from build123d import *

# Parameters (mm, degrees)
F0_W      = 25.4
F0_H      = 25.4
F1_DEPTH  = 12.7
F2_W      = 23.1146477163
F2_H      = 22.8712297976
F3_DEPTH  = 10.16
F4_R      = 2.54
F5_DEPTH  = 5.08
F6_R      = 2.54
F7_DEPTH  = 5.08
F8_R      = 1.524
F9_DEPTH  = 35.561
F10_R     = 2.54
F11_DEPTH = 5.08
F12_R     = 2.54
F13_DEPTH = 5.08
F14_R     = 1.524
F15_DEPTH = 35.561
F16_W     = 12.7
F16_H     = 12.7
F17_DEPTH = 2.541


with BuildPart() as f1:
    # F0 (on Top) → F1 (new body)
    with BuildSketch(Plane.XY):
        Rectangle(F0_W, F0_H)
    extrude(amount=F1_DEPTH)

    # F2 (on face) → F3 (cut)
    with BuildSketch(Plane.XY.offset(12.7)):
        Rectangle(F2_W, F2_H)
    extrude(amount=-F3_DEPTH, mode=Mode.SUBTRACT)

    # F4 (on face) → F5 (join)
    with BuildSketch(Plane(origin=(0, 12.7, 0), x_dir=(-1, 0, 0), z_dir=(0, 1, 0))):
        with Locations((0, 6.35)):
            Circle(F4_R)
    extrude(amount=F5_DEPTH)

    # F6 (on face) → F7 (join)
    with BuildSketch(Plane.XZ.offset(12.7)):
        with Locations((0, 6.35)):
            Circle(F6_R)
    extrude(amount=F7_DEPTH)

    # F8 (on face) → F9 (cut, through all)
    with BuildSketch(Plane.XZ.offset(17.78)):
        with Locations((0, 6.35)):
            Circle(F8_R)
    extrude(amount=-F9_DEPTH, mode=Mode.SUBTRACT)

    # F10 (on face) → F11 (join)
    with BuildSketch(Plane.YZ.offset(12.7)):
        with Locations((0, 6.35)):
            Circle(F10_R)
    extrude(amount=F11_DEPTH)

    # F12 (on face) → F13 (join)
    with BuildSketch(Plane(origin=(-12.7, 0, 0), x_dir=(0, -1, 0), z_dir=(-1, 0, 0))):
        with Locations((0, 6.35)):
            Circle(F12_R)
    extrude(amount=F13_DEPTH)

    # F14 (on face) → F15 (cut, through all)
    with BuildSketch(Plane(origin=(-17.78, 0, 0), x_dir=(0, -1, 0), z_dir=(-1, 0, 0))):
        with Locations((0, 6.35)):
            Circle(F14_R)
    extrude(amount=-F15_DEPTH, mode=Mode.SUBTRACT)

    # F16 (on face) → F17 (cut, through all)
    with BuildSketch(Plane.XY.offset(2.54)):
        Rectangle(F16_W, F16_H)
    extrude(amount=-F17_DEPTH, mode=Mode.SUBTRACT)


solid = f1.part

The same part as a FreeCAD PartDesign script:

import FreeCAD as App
import Part
import Sketcher

V = App.Vector
Q = App.Units.Quantity


def add_polygon(sketch, points):
    """Adds a closed chain of lines whose ends are joined by coincident constraints."""
    first, n = sketch.GeometryCount, len(points)
    for a, b in zip(points, points[1:] + points[:1]):
        sketch.addGeometry(Part.LineSegment(App.Vector(*a, 0), App.Vector(*b, 0)), False)
    for i in range(n):
        sketch.addConstraint(Sketcher.Constraint("Coincident", first + i, 2, first + (i + 1) % n, 1))

doc = App.newDocument("Part")
body = doc.addObject("PartDesign::Body", "Body")

# Sketch on XY plane
sketch1 = body.newObject("Sketcher::SketchObject", "Sketch")
sketch1.AttachmentSupport = (doc.getObject("XY_Plane"), [""])
sketch1.MapMode = "FlatFace"
add_polygon(sketch1, [(-13, 13), (-13, -13), (13, -13), (13, 13)])  # lines 0-3
sketch1.addConstraint([
    Sketcher.Constraint("Vertical", 0),
    Sketcher.Constraint("Horizontal", 1),
    Sketcher.Constraint("Vertical", 2),
    Sketcher.Constraint("Horizontal", 3),
    Sketcher.Constraint("Symmetric", 0, 2, 2, 2, -1, 1),
    Sketcher.Constraint("Equal", 3, 0),
    Sketcher.Constraint("DistanceX", 1, 1, 1, 2, Q("1 in")),
])
pad1 = body.newObject("PartDesign::Pad", "Pad")
pad1.Profile = sketch1
pad1.Length = Q("0.5 in")

# Sketch on XY plane
sketch2 = body.newObject("Sketcher::SketchObject", "Sketch001")
sketch2.AttachmentSupport = (doc.getObject("XY_Plane"), [""])
sketch2.MapMode = "FlatFace"
sketch2.AttachmentOffset = App.Placement(V(0, 0, 0.5 * 25.4), App.Rotation())
add_polygon(sketch2, [(-12, 11), (-12, -11), (12, -11), (12, 11)])  # lines 0-3
sketch2.addConstraint([
    Sketcher.Constraint("Vertical", 0),
    Sketcher.Constraint("Horizontal", 1),
    Sketcher.Constraint("Vertical", 2),
    Sketcher.Constraint("Horizontal", 3),
    Sketcher.Constraint("Symmetric", 0, 2, 2, 2, -1, 1),
    Sketcher.Constraint("DistanceY", 0, 2, 0, 1, 22.87123),
    Sketcher.Constraint("DistanceX", 1, 1, 1, 2, 23.114648),
])
pocket1 = body.newObject("PartDesign::Pocket", "Pocket")
pocket1.Profile = sketch2
pocket1.Length = Q("0.4 in")

# Sketch on XZ plane
sketch3 = body.newObject("Sketcher::SketchObject", "Sketch002")
sketch3.AttachmentSupport = (doc.getObject("XZ_Plane"), [""])
sketch3.MapMode = "FlatFace"
sketch3.AttachmentOffset = App.Placement(V(0, 0, -0.5 * 25.4), App.Rotation())
sketch3.addGeometry(Part.Circle(V(0, 6.3, 0), V(0, 0, 1), 2.5), False)
sketch3.addConstraint([
    Sketcher.Constraint("PointOnObject", 0, 3, -2),
    Sketcher.Constraint("Diameter", 0, Q("0.2 in")),
    Sketcher.Constraint("DistanceY", -1, 1, 0, 3, Q("0.25 in")),
])
pad2 = body.newObject("PartDesign::Pad", "Pad001")
pad2.Profile = sketch3
pad2.Length = Q("0.2 in")
pad2.Reversed = True

# Sketch on XZ plane
sketch4 = body.newObject("Sketcher::SketchObject", "Sketch003")
sketch4.AttachmentSupport = (doc.getObject("XZ_Plane"), [""])
sketch4.MapMode = "FlatFace"
sketch4.AttachmentOffset = App.Placement(V(0, 0, 0.5 * 25.4), App.Rotation())
sketch4.addGeometry(Part.Circle(V(0, 6.3, 0), V(0, 0, 1), 2.5), False)
sketch4.addConstraint([
    Sketcher.Constraint("PointOnObject", 0, 3, -2),
    Sketcher.Constraint("Diameter", 0, Q("0.2 in")),
    Sketcher.Constraint("DistanceY", -1, 1, 0, 3, Q("0.25 in")),
])
pad3 = body.newObject("PartDesign::Pad", "Pad002")
pad3.Profile = sketch4
pad3.Length = Q("0.2 in")

# Sketch on XZ plane
sketch5 = body.newObject("Sketcher::SketchObject", "Sketch004")
sketch5.AttachmentSupport = (doc.getObject("XZ_Plane"), [""])
sketch5.MapMode = "FlatFace"
sketch5.AttachmentOffset = App.Placement(V(0, 0, 0.7 * 25.4), App.Rotation())
sketch5.addGeometry(Part.Circle(V(0, 6.3, 0), V(0, 0, 1), 1.5), False)
sketch5.addConstraint([
    Sketcher.Constraint("PointOnObject", 0, 3, -2),
    Sketcher.Constraint("Diameter", 0, Q("0.12 in")),
    Sketcher.Constraint("DistanceY", -1, 1, 0, 3, Q("0.25 in")),
])
pocket2 = body.newObject("PartDesign::Pocket", "Pocket001")
pocket2.Profile = sketch5
pocket2.Type = "ThroughAll"

# Sketch on YZ plane
sketch6 = body.newObject("Sketcher::SketchObject", "Sketch005")
sketch6.AttachmentSupport = (doc.getObject("YZ_Plane"), [""])
sketch6.MapMode = "FlatFace"
sketch6.AttachmentOffset = App.Placement(V(0, 0, 0.5 * 25.4), App.Rotation())
sketch6.addGeometry(Part.Circle(V(0, 6.3, 0), V(0, 0, 1), 2.5), False)
sketch6.addConstraint([
    Sketcher.Constraint("PointOnObject", 0, 3, -2),
    Sketcher.Constraint("Diameter", 0, Q("0.2 in")),
    Sketcher.Constraint("DistanceY", -1, 1, 0, 3, Q("0.25 in")),
])
pad4 = body.newObject("PartDesign::Pad", "Pad003")
pad4.Profile = sketch6
pad4.Length = Q("0.2 in")

# Sketch on YZ plane
sketch7 = body.newObject("Sketcher::SketchObject", "Sketch006")
sketch7.AttachmentSupport = (doc.getObject("YZ_Plane"), [""])
sketch7.MapMode = "FlatFace"
sketch7.AttachmentOffset = App.Placement(V(0, 0, -0.5 * 25.4), App.Rotation())
sketch7.addGeometry(Part.Circle(V(0, 6.3, 0), V(0, 0, 1), 2.5), False)
sketch7.addConstraint([
    Sketcher.Constraint("PointOnObject", 0, 3, -2),
    Sketcher.Constraint("Diameter", 0, Q("0.2 in")),
    Sketcher.Constraint("DistanceY", -1, 1, 0, 3, Q("0.25 in")),
])
pad5 = body.newObject("PartDesign::Pad", "Pad004")
pad5.Profile = sketch7
pad5.Length = Q("0.2 in")
pad5.Reversed = True

# Sketch on YZ plane
sketch8 = body.newObject("Sketcher::SketchObject", "Sketch007")
sketch8.AttachmentSupport = (doc.getObject("YZ_Plane"), [""])
sketch8.MapMode = "FlatFace"
sketch8.AttachmentOffset = App.Placement(V(0, 0, -0.7 * 25.4), App.Rotation())
sketch8.addGeometry(Part.Circle(V(0, 6.3, 0), V(0, 0, 1), 1.5), False)
sketch8.addConstraint([
    Sketcher.Constraint("PointOnObject", 0, 3, -2),
    Sketcher.Constraint("Diameter", 0, Q("0.12 in")),
    Sketcher.Constraint("DistanceY", -1, 1, 0, 3, Q("0.25 in")),
])
pocket3 = body.newObject("PartDesign::Pocket", "Pocket002")
pocket3.Profile = sketch8
pocket3.Type = "ThroughAll"
pocket3.Reversed = True

# Sketch on XY plane
sketch9 = body.newObject("Sketcher::SketchObject", "Sketch008")
sketch9.AttachmentSupport = (doc.getObject("XY_Plane"), [""])
sketch9.MapMode = "FlatFace"
sketch9.AttachmentOffset = App.Placement(V(0, 0, 0.1 * 25.4), App.Rotation())
add_polygon(sketch9, [(-6, 6), (-6, -6), (6, -6), (6, 6)])  # lines 0-3
sketch9.addConstraint([
    Sketcher.Constraint("Vertical", 0),
    Sketcher.Constraint("Horizontal", 1),
    Sketcher.Constraint("Vertical", 2),
    Sketcher.Constraint("Horizontal", 3),
    Sketcher.Constraint("Symmetric", 0, 2, 2, 2, -1, 1),
    Sketcher.Constraint("Equal", 3, 0),
    Sketcher.Constraint("DistanceX", 1, 1, 1, 2, Q("0.5 in")),
])
pocket4 = body.newObject("PartDesign::Pocket", "Pocket003")
pocket4.Profile = sketch9
pocket4.Type = "ThroughAll"

doc.recompute()
